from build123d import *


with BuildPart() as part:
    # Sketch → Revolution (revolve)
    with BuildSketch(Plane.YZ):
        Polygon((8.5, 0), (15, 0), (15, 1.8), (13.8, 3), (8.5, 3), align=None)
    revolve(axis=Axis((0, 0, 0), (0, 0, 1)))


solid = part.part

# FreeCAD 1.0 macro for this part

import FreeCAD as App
import Part
import Sketcher
from FreeCAD import Vector
Q = App.Units.Quantity


def add_polygon(sketch, points):
    """Adds a closed chain of lines whose ends are joined by coincident constraints."""
    first, n = sketch.GeometryCount, len(points)
    for a, b in zip(points, points[1:] + points[:1]):
        sketch.addGeometry(Part.LineSegment(App.Vector(*a, 0), App.Vector(*b, 0)), False)
    for i in range(n):
        sketch.addConstraint(Sketcher.Constraint("Coincident", first + i, 2, first + (i + 1) % n, 1))

doc = App.newDocument("Part")
params = doc.addObject("Spreadsheet::Sheet", "Params")
for row, (alias, value) in enumerate([
    ("sketch1_height", "3 mm"),
    ("sketch1_width", "6.5 mm"),
    ("sketch1_width2", "5.3 mm"),
    ("revolution_angle", "360 deg"),
], start=1):
    params.set(f"A{row}", alias)
    params.set(f"B{row}", "=" + value)
    params.setAlias(f"B{row}", alias)

body = doc.addObject("PartDesign::Body", "Body")

sketch1 = body.newObject("Sketcher::SketchObject", "Sketch")
sketch1.AttachmentSupport = (doc.getObject("YZ_Plane"), [""])
sketch1.MapMode = "FlatFace"
add_polygon(sketch1, [(8.5, 0), (15, 0), (15, 1.8), (13.8, 3), (8.5, 3)])
sketch1.addConstraint([
    Sketcher.Constraint("Horizontal", 0),
    Sketcher.Constraint("Vertical", 1),
    Sketcher.Constraint("Horizontal", 3),
    Sketcher.Constraint("Vertical", 4),
    Sketcher.Constraint("PointOnObject", 0, 2, -1),
    Sketcher.Constraint("DistanceY", 4, 2, 4, 1, 3.0),
    Sketcher.Constraint("Angle", 2, Q("135 deg")),
    Sketcher.Constraint("DistanceX", 0, 1, 0, 2, 6.5),
    Sketcher.Constraint("DistanceX", 3, 2, 3, 1, 5.3),
    Sketcher.Constraint("DistanceX", -1, 1, 0, 2, 15.0),
])
sketch1.setExpression("Constraints[10]", "Params.sketch1_height")
sketch1.setExpression("Constraints[12]", "Params.sketch1_width")
sketch1.setExpression("Constraints[13]", "Params.sketch1_width2")
revolution = body.newObject("PartDesign::Revolution", "Revolution")
revolution.Profile = sketch1
revolution.ReferenceAxis = (sketch1, ["V_Axis"])
revolution.setExpression("Angle", "Params.revolution_angle")

doc.recompute()
